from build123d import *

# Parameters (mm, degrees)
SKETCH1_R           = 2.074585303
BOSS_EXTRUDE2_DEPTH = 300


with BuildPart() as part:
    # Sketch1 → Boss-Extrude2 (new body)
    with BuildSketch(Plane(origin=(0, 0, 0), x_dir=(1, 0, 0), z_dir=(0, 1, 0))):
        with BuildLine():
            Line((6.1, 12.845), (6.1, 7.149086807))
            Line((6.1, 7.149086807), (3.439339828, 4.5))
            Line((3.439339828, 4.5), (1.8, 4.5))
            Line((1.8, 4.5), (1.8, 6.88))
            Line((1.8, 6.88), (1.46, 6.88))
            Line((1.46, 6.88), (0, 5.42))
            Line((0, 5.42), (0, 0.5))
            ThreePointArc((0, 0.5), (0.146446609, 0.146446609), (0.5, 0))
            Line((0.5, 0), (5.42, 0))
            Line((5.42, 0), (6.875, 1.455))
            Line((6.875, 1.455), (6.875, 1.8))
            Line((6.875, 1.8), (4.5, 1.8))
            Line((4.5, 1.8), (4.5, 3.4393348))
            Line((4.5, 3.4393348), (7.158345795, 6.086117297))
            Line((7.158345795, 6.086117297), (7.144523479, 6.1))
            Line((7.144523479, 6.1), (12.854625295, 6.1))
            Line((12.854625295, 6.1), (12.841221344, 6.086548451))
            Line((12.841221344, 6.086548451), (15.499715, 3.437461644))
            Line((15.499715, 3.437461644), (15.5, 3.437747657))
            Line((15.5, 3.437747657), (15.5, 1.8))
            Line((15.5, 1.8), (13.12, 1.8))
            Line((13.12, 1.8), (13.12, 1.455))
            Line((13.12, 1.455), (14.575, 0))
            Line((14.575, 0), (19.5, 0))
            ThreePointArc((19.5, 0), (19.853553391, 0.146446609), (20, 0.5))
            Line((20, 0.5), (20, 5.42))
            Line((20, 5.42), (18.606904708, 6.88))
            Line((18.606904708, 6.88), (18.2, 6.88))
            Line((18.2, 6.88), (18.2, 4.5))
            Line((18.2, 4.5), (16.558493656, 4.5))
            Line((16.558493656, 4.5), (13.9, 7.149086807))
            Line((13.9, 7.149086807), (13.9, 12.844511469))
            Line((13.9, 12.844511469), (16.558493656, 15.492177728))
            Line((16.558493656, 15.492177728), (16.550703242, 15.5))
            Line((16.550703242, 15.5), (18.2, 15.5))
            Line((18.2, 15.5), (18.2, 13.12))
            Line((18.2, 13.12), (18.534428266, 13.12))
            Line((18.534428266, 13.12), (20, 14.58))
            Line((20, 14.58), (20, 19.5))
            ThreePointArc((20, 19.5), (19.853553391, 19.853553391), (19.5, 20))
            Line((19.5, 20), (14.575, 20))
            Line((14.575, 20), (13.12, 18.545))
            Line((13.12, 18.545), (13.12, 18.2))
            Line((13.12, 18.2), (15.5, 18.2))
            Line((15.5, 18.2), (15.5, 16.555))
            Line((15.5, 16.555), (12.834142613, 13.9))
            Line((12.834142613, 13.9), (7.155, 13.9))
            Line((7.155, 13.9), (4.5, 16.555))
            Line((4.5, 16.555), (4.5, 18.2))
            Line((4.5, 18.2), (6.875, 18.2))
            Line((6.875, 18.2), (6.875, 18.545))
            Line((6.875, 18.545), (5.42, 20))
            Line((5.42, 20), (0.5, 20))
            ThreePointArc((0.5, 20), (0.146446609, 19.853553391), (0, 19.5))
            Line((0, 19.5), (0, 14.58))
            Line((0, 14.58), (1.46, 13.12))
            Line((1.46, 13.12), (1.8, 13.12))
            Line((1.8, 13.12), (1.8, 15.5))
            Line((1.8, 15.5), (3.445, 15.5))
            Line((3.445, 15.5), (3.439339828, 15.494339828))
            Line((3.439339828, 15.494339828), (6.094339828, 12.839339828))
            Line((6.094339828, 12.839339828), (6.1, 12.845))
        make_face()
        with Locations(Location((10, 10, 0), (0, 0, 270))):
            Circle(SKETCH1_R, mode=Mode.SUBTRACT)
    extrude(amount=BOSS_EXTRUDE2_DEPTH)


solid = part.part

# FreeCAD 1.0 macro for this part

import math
import FreeCAD as App
import Part
import Sketcher
from FreeCAD import Vector
Q = App.Units.Quantity

doc = App.newDocument("Part")
params = doc.addObject("Spreadsheet::Sheet", "Params")
for row, (alias, value) in enumerate([
    ("sketch1_radius", "0.5 mm"),
    ("sketch1_width", "0.34 mm"),
    ("sketch1_width2", "4.92 mm"),
    ("sketch1_width3", "2.38 mm"),
    ("pad1_length", "300 mm"),
], start=1):
    params.set(f"A{row}", alias)
    params.set(f"B{row}", "=" + value)
    params.setAlias(f"B{row}", alias)

body = doc.addObject("PartDesign::Body", "Body")

# Sketch on XZ plane
sketch1 = body.newObject("Sketcher::SketchObject", "Sketch")
sketch1.AttachmentSupport = (doc.getObject("XZ_Plane"), [""])
sketch1.MapMode = "FlatFace"
sketch1.addGeometry(Part.LineSegment(Vector(6.1, -12.845, 0), Vector(6.1, -7.149087, 0)), False)
sketch1.addGeometry(Part.LineSegment(Vector(6.1, -7.149087, 0), Vector(3.43934, -4.5, 0)), False)
sketch1.addGeometry(Part.LineSegment(Vector(3.43934, -4.5, 0), Vector(1.8, -4.5, 0)), False)
sketch1.addGeometry(Part.LineSegment(Vector(1.8, -4.5, 0), Vector(1.8, -6.88, 0)), False)
sketch1.addGeometry(Part.LineSegment(Vector(1.8, -6.88, 0), Vector(1.46, -6.88, 0)), False)
sketch1.addGeometry(Part.LineSegment(Vector(1.46, -6.88, 0), Vector(0, -5.42, 0)), False)
sketch1.addGeometry(Part.LineSegment(Vector(0, -5.42, 0), Vector(0, -0.5, 0)), False)
sketch1.addGeometry(Part.ArcOfCircle(Part.Circle(Vector(0.5, -0.5, 0), Vector(0, 0, 1), 0.5), math.radians(90), math.radians(180)), False)
sketch1.addGeometry(Part.LineSegment(Vector(0.5, 0, 0), Vector(5.42, 0, 0)), False)
sketch1.addGeometry(Part.LineSegment(Vector(5.42, 0, 0), Vector(6.875, -1.455, 0)), False)
sketch1.addGeometry(Part.LineSegment(Vector(6.875, -1.455, 0), Vector(6.875, -1.8, 0)), False)
sketch1.addGeometry(Part.LineSegment(Vector(6.875, -1.8, 0), Vector(4.5, -1.8, 0)), False)
sketch1.addGeometry(Part.LineSegment(Vector(4.5, -1.8, 0), Vector(4.5, -3.439335, 0)), False)
sketch1.addGeometry(Part.LineSegment(Vector(4.5, -3.439335, 0), Vector(7.158346, -6.086117, 0)), False)
sketch1.addGeometry(Part.LineSegment(Vector(7.158346, -6.086117, 0), Vector(7.144523, -6.1, 0)), False)
sketch1.addGeometry(Part.LineSegment(Vector(7.144523, -6.1, 0), Vector(12.854625, -6.1, 0)), False)
sketch1.addGeometry(Part.LineSegment(Vector(12.854625, -6.1, 0), Vector(12.841221, -6.086548, 0)), False)
sketch1.addGeometry(Part.LineSegment(Vector(12.841221, -6.086548, 0), Vector(15.499715, -3.437462, 0)), False)
sketch1.addGeometry(Part.LineSegment(Vector(15.499715, -3.437462, 0), Vector(15.5, -3.437748, 0)), False)
sketch1.addGeometry(Part.LineSegment(Vector(15.5, -3.437748, 0), Vector(15.5, -1.8, 0)), False)
sketch1.addGeometry(Part.LineSegment(Vector(15.5, -1.8, 0), Vector(13.12, -1.8, 0)), False)
sketch1.addGeometry(Part.LineSegment(Vector(13.12, -1.8, 0), Vector(13.12, -1.455, 0)), False)
sketch1.addGeometry(Part.LineSegment(Vector(13.12, -1.455, 0), Vector(14.575, 0, 0)), False)
sketch1.addGeometry(Part.LineSegment(Vector(14.575, 0, 0), Vector(19.5, 0, 0)), False)
sketch1.addGeometry(Part.ArcOfCircle(Part.Circle(Vector(19.5, -0.5, 0), Vector(0, 0, 1), 0.5), math.radians(0), math.radians(90)), False)
sketch1.addGeometry(Part.LineSegment(Vector(20, -0.5, 0), Vector(20, -5.42, 0)), False)
sketch1.addGeometry(Part.LineSegment(Vector(20, -5.42, 0), Vector(18.606905, -6.88, 0)), False)
sketch1.addGeometry(Part.LineSegment(Vector(18.606905, -6.88, 0), Vector(18.2, -6.88, 0)), False)
sketch1.addGeometry(Part.LineSegment(Vector(18.2, -6.88, 0), Vector(18.2, -4.5, 0)), False)
sketch1.addGeometry(Part.LineSegment(Vector(18.2, -4.5, 0), Vector(16.558494, -4.5, 0)), False)
sketch1.addGeometry(Part.LineSegment(Vector(16.558494, -4.5, 0), Vector(13.9, -7.149087, 0)), False)
sketch1.addGeometry(Part.LineSegment(Vector(13.9, -7.149087, 0), Vector(13.9, -12.844511, 0)), False)
sketch1.addGeometry(Part.LineSegment(Vector(13.9, -12.844511, 0), Vector(16.558494, -15.492178, 0)), False)
sketch1.addGeometry(Part.LineSegment(Vector(16.558494, -15.492178, 0), Vector(16.550703, -15.5, 0)), False)
sketch1.addGeometry(Part.LineSegment(Vector(16.550703, -15.5, 0), Vector(18.2, -15.5, 0)), False)
sketch1.addGeometry(Part.LineSegment(Vector(18.2, -15.5, 0), Vector(18.2, -13.12, 0)), False)
sketch1.addGeometry(Part.LineSegment(Vector(18.2, -13.12, 0), Vector(18.534428, -13.12, 0)), False)
sketch1.addGeometry(Part.LineSegment(Vector(18.534428, -13.12, 0), Vector(20, -14.58, 0)), False)
sketch1.addGeometry(Part.LineSegment(Vector(20, -14.58, 0), Vector(20, -19.5, 0)), False)
sketch1.addGeometry(Part.ArcOfCircle(Part.Circle(Vector(19.5, -19.5, 0), Vector(0, 0, 1), 0.5), math.radians(-90), math.radians(0)), False)
sketch1.addGeometry(Part.LineSegment(Vector(19.5, -20, 0), Vector(14.575, -20, 0)), False)
sketch1.addGeometry(Part.LineSegment(Vector(14.575, -20, 0), Vector(13.12, -18.545, 0)), False)
sketch1.addGeometry(Part.LineSegment(Vector(13.12, -18.545, 0), Vector(13.12, -18.2, 0)), False)
sketch1.addGeometry(Part.LineSegment(Vector(13.12, -18.2, 0), Vector(15.5, -18.2, 0)), False)
sketch1.addGeometry(Part.LineSegment(Vector(15.5, -18.2, 0), Vector(15.5, -16.555, 0)), False)
sketch1.addGeometry(Part.LineSegment(Vector(15.5, -16.555, 0), Vector(12.834143, -13.9, 0)), False)
sketch1.addGeometry(Part.LineSegment(Vector(12.834143, -13.9, 0), Vector(7.155, -13.9, 0)), False)
sketch1.addGeometry(Part.LineSegment(Vector(7.155, -13.9, 0), Vector(4.5, -16.555, 0)), False)
sketch1.addGeometry(Part.LineSegment(Vector(4.5, -16.555, 0), Vector(4.5, -18.2, 0)), False)
sketch1.addGeometry(Part.LineSegment(Vector(4.5, -18.2, 0), Vector(6.875, -18.2, 0)), False)
sketch1.addGeometry(Part.LineSegment(Vector(6.875, -18.2, 0), Vector(6.875, -18.545, 0)), False)
sketch1.addGeometry(Part.LineSegment(Vector(6.875, -18.545, 0), Vector(5.42, -20, 0)), False)
sketch1.addGeometry(Part.LineSegment(Vector(5.42, -20, 0), Vector(0.5, -20, 0)), False)
sketch1.addGeometry(Part.ArcOfCircle(Part.Circle(Vector(0.5, -19.5, 0), Vector(0, 0, 1), 0.5), math.radians(180), math.radians(270)), False)
sketch1.addGeometry(Part.LineSegment(Vector(0, -19.5, 0), Vector(0, -14.58, 0)), False)
sketch1.addGeometry(Part.LineSegment(Vector(0, -14.58, 0), Vector(1.46, -13.12, 0)), False)
sketch1.addGeometry(Part.LineSegment(Vector(1.46, -13.12, 0), Vector(1.8, -13.12, 0)), False)
sketch1.addGeometry(Part.LineSegment(Vector(1.8, -13.12, 0), Vector(1.8, -15.5, 0)), False)
sketch1.addGeometry(Part.LineSegment(Vector(1.8, -15.5, 0), Vector(3.445, -15.5, 0)), False)
sketch1.addGeometry(Part.LineSegment(Vector(3.445, -15.5, 0), Vector(3.43934, -15.49434, 0)), False)
sketch1.addGeometry(Part.LineSegment(Vector(3.43934, -15.49434, 0), Vector(6.09434, -12.83934, 0)), False)
sketch1.addGeometry(Part.LineSegment(Vector(6.09434, -12.83934, 0), Vector(6.1, -12.845, 0)), False)
sketch1.addGeometry(Part.Circle(Vector(10, -10, 0), Vector(0, 0, 1), 2.074585), False)
sketch1.addConstraint(Sketcher.Constraint("Coincident", 0, 2, 1, 1))
sketch1.addConstraint(Sketcher.Constraint("Coincident", 1, 2, 2, 1))
sketch1.addConstraint(Sketcher.Constraint("Coincident", 2, 2, 3, 1))
sketch1.addConstraint(Sketcher.Constraint("Coincident", 3, 2, 4, 1))
sketch1.addConstraint(Sketcher.Constraint("Coincident", 4, 2, 5, 1))
sketch1.addConstraint(Sketcher.Constraint("Coincident", 5, 2, 6, 1))
sketch1.addConstraint(Sketcher.Constraint("Tangent", 6, 2, 7, 2))
sketch1.addConstraint(Sketcher.Constraint("Tangent", 7, 1, 8, 1))
sketch1.addConstraint(Sketcher.Constraint("Coincident", 8, 2, 9, 1))
sketch1.addConstraint(Sketcher.Constraint("Coincident", 9, 2, 10, 1))
sketch1.addConstraint(Sketcher.Constraint("Coincident", 10, 2, 11, 1))
sketch1.addConstraint(Sketcher.Constraint("Coincident", 11, 2, 12, 1))
sketch1.addConstraint(Sketcher.Constraint("Coincident", 12, 2, 13, 1))
sketch1.addConstraint(Sketcher.Constraint("Coincident", 13, 2, 14, 1))
sketch1.addConstraint(Sketcher.Constraint("Coincident", 14, 2, 15, 1))
sketch1.addConstraint(Sketcher.Constraint("Coincident", 15, 2, 16, 1))
sketch1.addConstraint(Sketcher.Constraint("Coincident", 16, 2, 17, 1))
sketch1.addConstraint(Sketcher.Constraint("Coincident", 17, 2, 18, 1))
sketch1.addConstraint(Sketcher.Constraint("Coincident", 18, 2, 19, 1))
sketch1.addConstraint(Sketcher.Constraint("Coincident", 19, 2, 20, 1))
sketch1.addConstraint(Sketcher.Constraint("Coincident", 20, 2, 21, 1))
sketch1.addConstraint(Sketcher.Constraint("Coincident", 21, 2, 22, 1))
sketch1.addConstraint(Sketcher.Constraint("Coincident", 22, 2, 23, 1))
sketch1.addConstraint(Sketcher.Constraint("Tangent", 23, 2, 24, 2))
sketch1.addConstraint(Sketcher.Constraint("Tangent", 24, 1, 25, 1))
sketch1.addConstraint(Sketcher.Constraint("Coincident", 25, 2, 26, 1))
sketch1.addConstraint(Sketcher.Constraint("Coincident", 26, 2, 27, 1))
sketch1.addConstraint(Sketcher.Constraint("Coincident", 27, 2, 28, 1))
sketch1.addConstraint(Sketcher.Constraint("Coincident", 28, 2, 29, 1))
sketch1.addConstraint(Sketcher.Constraint("Coincident", 29, 2, 30, 1))
sketch1.addConstraint(Sketcher.Constraint("Coincident", 30, 2, 31, 1))
sketch1.addConstraint(Sketcher.Constraint("Coincident", 31, 2, 32, 1))
sketch1.addConstraint(Sketcher.Constraint("Coincident", 32, 2, 33, 1))
sketch1.addConstraint(Sketcher.Constraint("Coincident", 33, 2, 34, 1))
sketch1.addConstraint(Sketcher.Constraint("Coincident", 34, 2, 35, 1))
sketch1.addConstraint(Sketcher.Constraint("Coincident", 35, 2, 36, 1))
sketch1.addConstraint(Sketcher.Constraint("Coincident", 36, 2, 37, 1))
sketch1.addConstraint(Sketcher.Constraint("Coincident", 37, 2, 38, 1))
sketch1.addConstraint(Sketcher.Constraint("Tangent", 38, 2, 39, 2))
sketch1.addConstraint(Sketcher.Constraint("Tangent", 39, 1, 40, 1))
sketch1.addConstraint(Sketcher.Constraint("Coincident", 40, 2, 41, 1))
sketch1.addConstraint(Sketcher.Constraint("Coincident", 41, 2, 42, 1))
sketch1.addConstraint(Sketcher.Constraint("Coincident", 42, 2, 43, 1))
sketch1.addConstraint(Sketcher.Constraint("Coincident", 43, 2, 44, 1))
sketch1.addConstraint(Sketcher.Constraint("Coincident", 44, 2, 45, 1))
sketch1.addConstraint(Sketcher.Constraint("Coincident", 45, 2, 46, 1))
sketch1.addConstraint(Sketcher.Constraint("Coincident", 46, 2, 47, 1))
sketch1.addConstraint(Sketcher.Constraint("Coincident", 47, 2, 48, 1))
sketch1.addConstraint(Sketcher.Constraint("Coincident", 48, 2, 49, 1))
sketch1.addConstraint(Sketcher.Constraint("Coincident", 49, 2, 50, 1))
sketch1.addConstraint(Sketcher.Constraint("Coincident", 50, 2, 51, 1))
sketch1.addConstraint(Sketcher.Constraint("Coincident", 51, 2, 52, 1))
sketch1.addConstraint(Sketcher.Constraint("Tangent", 52, 2, 53, 2))
sketch1.addConstraint(Sketcher.Constraint("Tangent", 53, 1, 54, 1))
sketch1.addConstraint(Sketcher.Constraint("Coincident", 54, 2, 55, 1))
sketch1.addConstraint(Sketcher.Constraint("Coincident", 55, 2, 56, 1))
sketch1.addConstraint(Sketcher.Constraint("Coincident", 56, 2, 57, 1))
sketch1.addConstraint(Sketcher.Constraint("Coincident", 57, 2, 58, 1))
sketch1.addConstraint(Sketcher.Constraint("Coincident", 58, 2, 59, 1))
sketch1.addConstraint(Sketcher.Constraint("Coincident", 59, 2, 60, 1))
sketch1.addConstraint(Sketcher.Constraint("Coincident", 60, 2, 61, 1))
sketch1.addConstraint(Sketcher.Constraint("Coincident", 61, 2, 0, 1))
sketch1.addConstraint(Sketcher.Constraint("Vertical", 0))
sketch1.addConstraint(Sketcher.Constraint("Horizontal", 2))
sketch1.addConstraint(Sketcher.Constraint("Vertical", 3))
sketch1.addConstraint(Sketcher.Constraint("Horizontal", 4))
sketch1.addConstraint(Sketcher.Constraint("Vertical", 6))
sketch1.addConstraint(Sketcher.Constraint("Horizontal", 8))
sketch1.addConstraint(Sketcher.Constraint("Vertical", 10))
sketch1.addConstraint(Sketcher.Constraint("Horizontal", 11))
sketch1.addConstraint(Sketcher.Constraint("Vertical", 12))
sketch1.addConstraint(Sketcher.Constraint("Horizontal", 15))
sketch1.addConstraint(Sketcher.Constraint("Vertical", 19))
sketch1.addConstraint(Sketcher.Constraint("Horizontal", 20))
sketch1.addConstraint(Sketcher.Constraint("Vertical", 21))
sketch1.addConstraint(Sketcher.Constraint("Horizontal", 23))
sketch1.addConstraint(Sketcher.Constraint("Vertical", 25))
sketch1.addConstraint(Sketcher.Constraint("Horizontal", 27))
sketch1.addConstraint(Sketcher.Constraint("Vertical", 28))
sketch1.addConstraint(Sketcher.Constraint("Horizontal", 29))
sketch1.addConstraint(Sketcher.Constraint("Vertical", 31))
sketch1.addConstraint(Sketcher.Constraint("Horizontal", 34))
sketch1.addConstraint(Sketcher.Constraint("Vertical", 35))
sketch1.addConstraint(Sketcher.Constraint("Horizontal", 36))
sketch1.addConstraint(Sketcher.Constraint("Vertical", 38))
sketch1.addConstraint(Sketcher.Constraint("Horizontal", 40))
sketch1.addConstraint(Sketcher.Constraint("Vertical", 42))
sketch1.addConstraint(Sketcher.Constraint("Horizontal", 43))
sketch1.addConstraint(Sketcher.Constraint("Vertical", 44))
sketch1.addConstraint(Sketcher.Constraint("Horizontal", 46))
sketch1.addConstraint(Sketcher.Constraint("Vertical", 48))
sketch1.addConstraint(Sketcher.Constraint("Horizontal", 49))
sketch1.addConstraint(Sketcher.Constraint("Vertical", 50))
sketch1.addConstraint(Sketcher.Constraint("Horizontal", 52))
sketch1.addConstraint(Sketcher.Constraint("Vertical", 54))
sketch1.addConstraint(Sketcher.Constraint("Horizontal", 56))
sketch1.addConstraint(Sketcher.Constraint("Vertical", 57))
sketch1.addConstraint(Sketcher.Constraint("Horizontal", 58))
sketch1.addConstraint(Sketcher.Constraint("Equal", 7, 24))
sketch1.addConstraint(Sketcher.Constraint("Equal", 24, 39))
sketch1.addConstraint(Sketcher.Constraint("Equal", 39, 53))
sketch1.addConstraint(Sketcher.Constraint("PointOnObject", 5, 2, -2))
sketch1.addConstraint(Sketcher.Constraint("PointOnObject", 7, 1, -1))
sketch1.addConstraint(Sketcher.Constraint("PointOnObject", 22, 2, -1))
sketch1.addConstraint(Sketcher.Constraint("PointOnObject", 53, 1, -2))
sketch1.addConstraint(Sketcher.Constraint("Parallel", 5, 9))
sketch1.addConstraint(Sketcher.Constraint("Parallel", 1, 13))
sketch1.addConstraint(Sketcher.Constraint("Perpendicular", 13, 14))
sketch1.addConstraint(Sketcher.Constraint("Perpendicular", 16, 17))
sketch1.addConstraint(Sketcher.Constraint("Perpendicular", 17, 18))
sketch1.addConstraint(Sketcher.Constraint("Perpendicular", 9, 22))
sketch1.addConstraint(Sketcher.Constraint("Parallel", 17, 30))
sketch1.addConstraint(Sketcher.Constraint("Perpendicular", 32, 33))
sketch1.addConstraint(Sketcher.Constraint("Perpendicular", 22, 41))
sketch1.addConstraint(Sketcher.Constraint("Perpendicular", 33, 45))
sketch1.addConstraint(Sketcher.Constraint("Perpendicular", 41, 47))
sketch1.addConstraint(Sketcher.Constraint("Parallel", 47, 51))
sketch1.addConstraint(Sketcher.Constraint("Parallel", 51, 55))
sketch1.addConstraint(Sketcher.Constraint("Perpendicular", 55, 59))
sketch1.addConstraint(Sketcher.Constraint("Parallel", 55, 60))
sketch1.addConstraint(Sketcher.Constraint("Perpendicular", 60, 61))
sketch1.addConstraint(Sketcher.Constraint("Horizontal", 39, 3, 53, 3))
sketch1.addConstraint(Sketcher.Constraint("Horizontal", 11, 2, 19, 2))
sketch1.addConstraint(Sketcher.Constraint("Horizontal", 9, 2, 21, 2))
sketch1.addConstraint(Sketcher.Constraint("Horizontal", 5, 2, 25, 2))
sketch1.addConstraint(Sketcher.Constraint("Horizontal", 4, 2, 26, 2))
sketch1.addConstraint(Sketcher.Constraint("Horizontal", 2, 2, 28, 2))
sketch1.addConstraint(Sketcher.Constraint("Horizontal", 0, 2, 30, 2))
sketch1.addConstraint(Sketcher.Constraint("Horizontal", 44, 2, 47, 2))
sketch1.addConstraint(Sketcher.Constraint("Horizontal", 43, 2, 48, 2))
sketch1.addConstraint(Sketcher.Constraint("Horizontal", 41, 2, 50, 2))
sketch1.addConstraint(Sketcher.Constraint("Horizontal", 37, 2, 54, 2))
sketch1.addConstraint(Sketcher.Constraint("Horizontal", 36, 2, 55, 2))
sketch1.addConstraint(Sketcher.Constraint("Horizontal", 34, 2, 57, 2))
sketch1.addConstraint(Sketcher.Constraint("Vertical", 24, 3, 39, 3))
sketch1.addConstraint(Sketcher.Constraint("Vertical", 29, 2, 32, 2))
sketch1.addConstraint(Sketcher.Constraint("Vertical", 28, 2, 34, 2))
sketch1.addConstraint(Sketcher.Constraint("Vertical", 22, 2, 40, 2))
sketch1.addConstraint(Sketcher.Constraint("Vertical", 21, 2, 41, 2))
sketch1.addConstraint(Sketcher.Constraint("Vertical", 19, 2, 43, 2))
sketch1.addConstraint(Sketcher.Constraint("Vertical", 12, 2, 47, 2))
sketch1.addConstraint(Sketcher.Constraint("Vertical", 10, 2, 49, 2))
sketch1.addConstraint(Sketcher.Constraint("Vertical", 8, 2, 51, 2))
sketch1.addConstraint(Sketcher.Constraint("Vertical", 4, 2, 55, 2))
sketch1.addConstraint(Sketcher.Constraint("Vertical", 3, 2, 56, 2))
sketch1.addConstraint(Sketcher.Constraint("Vertical", 1, 2, 59, 2))
sketch1.addConstraint(Sketcher.Constraint("Equal", 43, 3))
sketch1.addConstraint(Sketcher.Constraint("Equal", 52, 6))
sketch1.addConstraint(Sketcher.Constraint("Equal", 28, 35))
sketch1.addConstraint(Sketcher.Constraint("Equal", 25, 38))
sketch1.addConstraint(Sketcher.Constraint("Equal", 21, 42))
sketch1.addConstraint(Sketcher.Constraint("Equal", 58, 44))
sketch1.addConstraint(Sketcher.Constraint("Equal", 17, 30))
sketch1.addConstraint(Sketcher.Constraint("Equal", 47, 60))
sketch1.addConstraint(Sketcher.Constraint("Equal", 59, 61))
sketch1.addConstraint(Sketcher.Constraint("Radius", 7, Q("0.5 mm")))
sketch1.addConstraint(Sketcher.Constraint("DistanceX", -1, 1, 62, 3, Q("10 mm")))
sketch1.addConstraint(Sketcher.Constraint("DistanceY", 62, 3, -1, 1, Q("10 mm")))
sketch1.addConstraint(Sketcher.Constraint("DistanceX", -1, 1, 24, 1, Q("20 mm")))
sketch1.addConstraint(Sketcher.Constraint("DistanceY", 39, 1, -1, 1, Q("20 mm")))
sketch1.addConstraint(Sketcher.Constraint("DistanceX", 4, 2, 4, 1, Q("0.34 mm")))
sketch1.addConstraint(Sketcher.Constraint("DistanceX", 8, 1, 8, 2, Q("4.92 mm")))
sketch1.addConstraint(Sketcher.Constraint("DistanceX", 20, 2, 20, 1, Q("2.38 mm")))
sketch1.addConstraint(Sketcher.Constraint("DistanceX", -1, 1, 0, 2, Q("6.1 mm")))
sketch1.addConstraint(Sketcher.Constraint("DistanceY", 1, 2, -1, 1, Q("4.5 mm")))
sketch1.addConstraint(Sketcher.Constraint("DistanceY", 10, 2, -1, 1, Q("1.8 mm")))
sketch1.addConstraint(Sketcher.Constraint("DistanceX", -1, 1, 11, 2, Q("4.5 mm")))
sketch1.addConstraint(Sketcher.Constraint("DistanceY", 14, 2, -1, 1, Q("6.1 mm")))
sketch1.addConstraint(Sketcher.Constraint("DistanceX", -1, 1, 18, 2, Q("15.5 mm")))
sketch1.addConstraint(Sketcher.Constraint("DistanceX", -1, 1, 27, 2, Q("18.2 mm")))
sketch1.addConstraint(Sketcher.Constraint("DistanceX", -1, 1, 30, 2, Q("13.9 mm")))
sketch1.addConstraint(Sketcher.Constraint("Diameter", 62, Q("4.149171 mm")))
sketch1.addConstraint(Sketcher.Constraint("DistanceX", 11, 2, 11, 1, Q("2.375 mm")))
sketch1.addConstraint(Sketcher.Constraint("DistanceX", 58, 1, 58, 2, Q("1.645 mm")))
sketch1.addConstraint(Sketcher.Constraint("DistanceX", 15, 1, 15, 2, Q("5.710102 mm")))
sketch1.addConstraint(Sketcher.Constraint("Distance", 13, Q("3.751301 mm")))
sketch1.addConstraint(Sketcher.Constraint("DistanceX", 2, 2, 2, 1, Q("1.63934 mm")))
sketch1.addConstraint(Sketcher.Constraint("DistanceX", 36, 1, 36, 2, Q("0.334428 mm")))
sketch1.addConstraint(Sketcher.Constraint("Distance", 14, Q("0.01959 mm")))
sketch1.addConstraint(Sketcher.Constraint("Distance", 16, Q("0.01899 mm")))
sketch1.addConstraint(Sketcher.Constraint("Distance", 32, Q("3.752029 mm")))
sketch1.addConstraint(Sketcher.Constraint("Distance", 33, Q("0.01104 mm")))
sketch1.addConstraint(Sketcher.Constraint("DistanceX", 27, 2, 27, 1, Q("0.406905 mm")))
sketch1.addConstraint(Sketcher.Constraint("DistanceX", 29, 2, 29, 1, Q("1.641506 mm")))
sketch1.addConstraint(Sketcher.Constraint("DistanceY", 0, 1, 0, 2, Q("5.695913 mm")))
sketch1.setExpression("Constraints[155]", "Params.sketch1_radius")
sketch1.setExpression("Constraints[160]", "Params.sketch1_width")
sketch1.setExpression("Constraints[161]", "Params.sketch1_width2")
sketch1.setExpression("Constraints[162]", "Params.sketch1_width3")
pad1 = body.newObject("PartDesign::Pad", "Pad")
pad1.Profile = sketch1
pad1.setExpression("Length", "Params.pad1_length")
pad1.Reversed = True

doc.recompute()
